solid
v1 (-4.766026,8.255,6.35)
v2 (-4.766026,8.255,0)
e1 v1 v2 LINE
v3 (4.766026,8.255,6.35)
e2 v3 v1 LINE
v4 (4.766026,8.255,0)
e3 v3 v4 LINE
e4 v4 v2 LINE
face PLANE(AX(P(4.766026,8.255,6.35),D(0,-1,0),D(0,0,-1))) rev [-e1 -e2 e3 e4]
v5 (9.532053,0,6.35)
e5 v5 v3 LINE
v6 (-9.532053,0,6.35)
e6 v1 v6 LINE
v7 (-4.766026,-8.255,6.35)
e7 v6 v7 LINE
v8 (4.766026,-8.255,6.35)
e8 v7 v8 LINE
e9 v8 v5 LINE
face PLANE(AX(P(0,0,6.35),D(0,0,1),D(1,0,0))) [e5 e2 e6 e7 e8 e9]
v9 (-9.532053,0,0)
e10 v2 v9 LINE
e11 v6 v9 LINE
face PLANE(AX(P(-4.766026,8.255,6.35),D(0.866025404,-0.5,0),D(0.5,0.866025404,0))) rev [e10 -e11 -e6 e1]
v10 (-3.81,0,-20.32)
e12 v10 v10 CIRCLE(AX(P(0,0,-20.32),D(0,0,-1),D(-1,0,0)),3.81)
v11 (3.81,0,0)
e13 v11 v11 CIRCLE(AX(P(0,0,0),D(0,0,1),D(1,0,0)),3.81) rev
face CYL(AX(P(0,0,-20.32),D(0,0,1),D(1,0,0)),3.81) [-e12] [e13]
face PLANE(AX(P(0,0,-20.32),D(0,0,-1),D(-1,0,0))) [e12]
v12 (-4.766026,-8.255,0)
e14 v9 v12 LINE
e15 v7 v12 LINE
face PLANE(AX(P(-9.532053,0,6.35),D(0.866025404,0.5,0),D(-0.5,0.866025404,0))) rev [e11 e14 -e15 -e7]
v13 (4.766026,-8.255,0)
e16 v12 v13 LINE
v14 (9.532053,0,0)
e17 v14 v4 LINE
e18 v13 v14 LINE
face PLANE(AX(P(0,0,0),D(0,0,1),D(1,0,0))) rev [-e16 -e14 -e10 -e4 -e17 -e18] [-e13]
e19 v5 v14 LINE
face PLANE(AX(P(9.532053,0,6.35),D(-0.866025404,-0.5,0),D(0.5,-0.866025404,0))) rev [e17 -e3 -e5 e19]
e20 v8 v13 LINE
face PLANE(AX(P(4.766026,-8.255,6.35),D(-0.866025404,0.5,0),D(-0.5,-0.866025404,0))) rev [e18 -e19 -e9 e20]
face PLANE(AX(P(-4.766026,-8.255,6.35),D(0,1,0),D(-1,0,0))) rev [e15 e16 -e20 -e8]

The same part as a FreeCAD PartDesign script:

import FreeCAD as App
import Part
import Sketcher
from FreeCAD import Vector
Q = App.Units.Quantity


def add_polygon(sketch, points):
    """Adds a closed chain of lines whose ends are joined by coincident constraints."""
    first, n = sketch.GeometryCount, len(points)
    for a, b in zip(points, points[1:] + points[:1]):
        sketch.addGeometry(Part.LineSegment(App.Vector(*a, 0), App.Vector(*b, 0)), False)
    for i in range(n):
        sketch.addConstraint(Sketcher.Constraint("Coincident", first + i, 2, first + (i + 1) % n, 1))

doc = App.newDocument("Part")
body = doc.addObject("PartDesign::Body", "Body")

# Sketch on XY plane
sketch1 = body.newObject("Sketcher::SketchObject", "Sketch")
sketch1.AttachmentSupport = (doc.getObject("XY_Plane"), [""])
sketch1.MapMode = "FlatFace"
add_polygon(sketch1, [(5, -8), (10, 0), (5, 8), (-5, 8), (-10, 0), (-5, -8)])  # lines 0-5
sketch1.addConstraint(Sketcher.Constraint("Horizontal", 2))
sketch1.addConstraint(Sketcher.Constraint("Horizontal", 5))
sketch1.addConstraint(Sketcher.Constraint("Symmetric", 0, 2, 3, 2, -1, 1))
sketch1.addConstraint(Sketcher.Constraint("Symmetric", 1, 2, 4, 2, -1, 1))
sketch1.addConstraint(Sketcher.Constraint("PointOnObject", 0, 2, -1))
sketch1.addConstraint(Sketcher.Constraint("Parallel", 0, 3))
sketch1.addConstraint(Sketcher.Constraint("Vertical", 2, 2, 4, 2))
sketch1.addConstraint(Sketcher.Constraint("Angle", 0, Q("60 deg")))
sketch1.addConstraint(Sketcher.Constraint("DistanceY", 4, 2, 2, 2, Q("0.65 in")))
sketch1.addConstraint(Sketcher.Constraint("DistanceX", 2, 2, 2, 1, 9.532053))
pad1 = body.newObject("PartDesign::Pad", "Pad")
pad1.Profile = sketch1
pad1.Length = Q("0.25 in")

# Sketch on XY plane
sketch2 = body.newObject("Sketcher::SketchObject", "Sketch001")
sketch2.AttachmentSupport = (doc.getObject("XY_Plane"), [""])
sketch2.MapMode = "FlatFace"
sketch2.addGeometry(Part.Circle(Vector(0, 0, 0), Vector(0, 0, 1), 3.8), False)
sketch2.addConstraint(Sketcher.Constraint("Coincident", 0, 3, -1, 1))
sketch2.addConstraint(Sketcher.Constraint("Diameter", 0, Q("0.3 in")))
pad2 = body.newObject("PartDesign::Pad", "Pad001")
pad2.Profile = sketch2
pad2.Length = Q("0.8 in")
pad2.Reversed = True

doc.recompute()
